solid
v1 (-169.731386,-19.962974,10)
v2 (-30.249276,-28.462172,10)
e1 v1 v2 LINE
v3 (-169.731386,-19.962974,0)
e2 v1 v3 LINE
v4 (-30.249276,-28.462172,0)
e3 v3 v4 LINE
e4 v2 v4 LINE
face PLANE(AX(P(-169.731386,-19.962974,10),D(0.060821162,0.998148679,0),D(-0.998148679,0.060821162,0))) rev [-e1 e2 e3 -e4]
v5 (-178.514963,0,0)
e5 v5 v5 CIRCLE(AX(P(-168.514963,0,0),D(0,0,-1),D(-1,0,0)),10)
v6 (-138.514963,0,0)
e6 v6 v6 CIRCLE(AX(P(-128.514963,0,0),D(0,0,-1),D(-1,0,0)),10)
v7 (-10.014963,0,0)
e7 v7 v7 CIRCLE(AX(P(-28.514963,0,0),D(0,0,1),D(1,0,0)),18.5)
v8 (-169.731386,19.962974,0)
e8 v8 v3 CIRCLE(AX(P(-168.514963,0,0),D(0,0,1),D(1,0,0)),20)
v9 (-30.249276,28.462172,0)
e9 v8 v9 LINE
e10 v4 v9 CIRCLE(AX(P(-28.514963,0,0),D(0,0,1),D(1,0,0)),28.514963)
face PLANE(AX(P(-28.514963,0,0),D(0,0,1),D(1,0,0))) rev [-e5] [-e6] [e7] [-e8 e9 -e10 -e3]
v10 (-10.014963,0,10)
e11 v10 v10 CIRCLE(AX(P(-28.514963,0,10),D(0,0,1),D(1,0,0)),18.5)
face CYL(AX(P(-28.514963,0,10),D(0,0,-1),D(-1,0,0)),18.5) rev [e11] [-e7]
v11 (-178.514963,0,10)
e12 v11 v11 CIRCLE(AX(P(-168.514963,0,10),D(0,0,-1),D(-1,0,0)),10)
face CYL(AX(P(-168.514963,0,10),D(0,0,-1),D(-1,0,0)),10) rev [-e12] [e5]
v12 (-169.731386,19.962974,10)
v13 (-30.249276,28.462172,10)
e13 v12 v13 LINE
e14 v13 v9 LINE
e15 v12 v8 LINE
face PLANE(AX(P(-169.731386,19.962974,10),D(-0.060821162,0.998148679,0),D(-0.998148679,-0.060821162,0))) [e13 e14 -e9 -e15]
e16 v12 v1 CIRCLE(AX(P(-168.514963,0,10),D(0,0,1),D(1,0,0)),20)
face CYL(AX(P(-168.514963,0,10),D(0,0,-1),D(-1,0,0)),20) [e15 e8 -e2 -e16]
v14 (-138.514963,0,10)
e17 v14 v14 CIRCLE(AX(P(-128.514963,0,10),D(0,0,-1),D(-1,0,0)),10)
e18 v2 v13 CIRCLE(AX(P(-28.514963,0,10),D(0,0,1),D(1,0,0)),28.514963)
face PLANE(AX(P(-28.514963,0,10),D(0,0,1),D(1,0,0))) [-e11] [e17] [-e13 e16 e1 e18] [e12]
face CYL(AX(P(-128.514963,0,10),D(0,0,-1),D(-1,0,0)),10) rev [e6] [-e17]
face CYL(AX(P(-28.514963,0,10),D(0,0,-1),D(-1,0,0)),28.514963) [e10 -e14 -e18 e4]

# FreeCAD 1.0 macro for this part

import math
import FreeCAD as App
import Part
import Sketcher

V = App.Vector

doc = App.newDocument("Part")
params = doc.addObject("Spreadsheet::Sheet", "Params")
for row, (alias, value) in enumerate([
    ("sketch1_radius", "10 mm"),
    ("sketch1_radius2", "20 mm"),
    ("sketch1_radius3", "18.5 mm"),
    ("sketch1_width", "20 mm"),
    ("sketch1_width2", "71.5 mm"),
    ("pad1_length", "10 mm"),
], start=1):
    params.set(f"A{row}", alias)
    params.set(f"B{row}", "=" + value)
    params.setAlias(f"B{row}", alias)

body = doc.addObject("PartDesign::Body", "Body")

# Sketch on XY plane
sketch1 = doc.addObject("Sketcher::SketchObject", "Sketch")
body.addObject(sketch1)
sketch1.AttachmentSupport = (doc.XY_Plane, [""])
sketch1.MapMode = "FlatFace"
sketch1.addGeometry([
    Part.LineSegment(V(0, 0, 0), V(-10.014963, 0, 0)),  # 0
    Part.ArcOfCircle(Part.Circle(V(-28.514963, 0, 0), V(0, 0, 1), 18.5), math.radians(180), math.radians(360)),  # 1
    Part.LineSegment(V(-47.014963, 0, 0), V(-118.514963, 0, 0)),  # 2
    Part.ArcOfCircle(Part.Circle(V(-128.514963, 0, 0), V(0, 0, 1), 10), math.radians(180), math.radians(360)),  # 3
    Part.LineSegment(V(-138.514963, 0, 0), V(-158.514963, 0, 0)),  # 4
    Part.ArcOfCircle(Part.Circle(V(-168.514963, 0, 0), V(0, 0, 1), 10), math.radians(180), math.radians(360)),  # 5
    Part.LineSegment(V(-178.514963, 0, 0), V(-188.514963, 0, 0)),  # 6
    Part.ArcOfCircle(Part.Circle(V(-168.514963, 0, 0), V(0, 0, 1), 20), math.radians(180), math.radians(266.513052)),  # 7
    Part.LineSegment(V(-169.731386, -19.962974, 0), V(-30.249276, -28.462172, 0)),  # 8
    Part.ArcOfCircle(Part.Circle(V(-28.514963, 0, 0), V(0, 0, 1), 28.514963), math.radians(-93.486948), math.radians(0)),  # 9
], False)
sketch1.addConstraint([
    Sketcher.Constraint("Coincident", 0, 2, 1, 2),
    Sketcher.Constraint("Coincident", 1, 1, 2, 1),
    Sketcher.Constraint("Coincident", 2, 2, 3, 2),
    Sketcher.Constraint("Coincident", 3, 1, 4, 1),
    Sketcher.Constraint("Coincident", 4, 2, 5, 2),
    Sketcher.Constraint("Coincident", 5, 1, 6, 1),
    Sketcher.Constraint("Coincident", 6, 2, 7, 1),
    Sketcher.Constraint("Tangent", 7, 2, 8, 1),
    Sketcher.Constraint("Tangent", 8, 2, 9, 1),
    Sketcher.Constraint("Coincident", 9, 2, 0, 1),
    Sketcher.Constraint("Horizontal", 0),
    Sketcher.Constraint("Horizontal", 2),
    Sketcher.Constraint("Horizontal", 4),
    Sketcher.Constraint("Horizontal", 6),
    Sketcher.Constraint("Coincident", 9, 2, -1, 1),
    Sketcher.Constraint("Coincident", 7, 3, 5, 3),
    Sketcher.Constraint("Coincident", 9, 3, 1, 3),
    Sketcher.Constraint("Equal", 3, 5),
    Sketcher.Constraint("PointOnObject", 1, 3, -1),
    Sketcher.Constraint("PointOnObject", 3, 3, -1),
    Sketcher.Constraint("PointOnObject", 5, 3, -1),
    Sketcher.Constraint("PointOnObject", 1, 1, -1),
    Sketcher.Constraint("PointOnObject", 3, 1, -1),
    Sketcher.Constraint("PointOnObject", 5, 1, -1),
    Sketcher.Constraint("Radius", 3, 10.0),
    Sketcher.Constraint("Radius", 7, 20.0),
    Sketcher.Constraint("Radius", 1, 18.5),
    Sketcher.Constraint("DistanceX", 4, 2, 4, 1, 20.0),
    Sketcher.Constraint("DistanceX", 2, 2, 2, 1, 71.5),
    Sketcher.Constraint("Radius", 9, 28.514963),
])
sketch1.setExpression("Constraints[24]", "Params.sketch1_radius")
sketch1.setExpression("Constraints[25]", "Params.sketch1_radius2")
sketch1.setExpression("Constraints[26]", "Params.sketch1_radius3")
sketch1.setExpression("Constraints[27]", "Params.sketch1_width")
sketch1.setExpression("Constraints[28]", "Params.sketch1_width2")
pad1 = doc.addObject("PartDesign::Pad", "Pad")
body.addObject(pad1)
pad1.Profile = sketch1
pad1.setExpression("Length", "Params.pad1_length")
doc.recompute()

mirrored = doc.addObject("PartDesign::Mirrored", "Mirrored")
body.addObject(mirrored)
mirrored.Originals = [pad1]
mirrored.MirrorPlane = (doc.XZ_Plane, [""])
body.Tip = mirrored

doc.recompute()
